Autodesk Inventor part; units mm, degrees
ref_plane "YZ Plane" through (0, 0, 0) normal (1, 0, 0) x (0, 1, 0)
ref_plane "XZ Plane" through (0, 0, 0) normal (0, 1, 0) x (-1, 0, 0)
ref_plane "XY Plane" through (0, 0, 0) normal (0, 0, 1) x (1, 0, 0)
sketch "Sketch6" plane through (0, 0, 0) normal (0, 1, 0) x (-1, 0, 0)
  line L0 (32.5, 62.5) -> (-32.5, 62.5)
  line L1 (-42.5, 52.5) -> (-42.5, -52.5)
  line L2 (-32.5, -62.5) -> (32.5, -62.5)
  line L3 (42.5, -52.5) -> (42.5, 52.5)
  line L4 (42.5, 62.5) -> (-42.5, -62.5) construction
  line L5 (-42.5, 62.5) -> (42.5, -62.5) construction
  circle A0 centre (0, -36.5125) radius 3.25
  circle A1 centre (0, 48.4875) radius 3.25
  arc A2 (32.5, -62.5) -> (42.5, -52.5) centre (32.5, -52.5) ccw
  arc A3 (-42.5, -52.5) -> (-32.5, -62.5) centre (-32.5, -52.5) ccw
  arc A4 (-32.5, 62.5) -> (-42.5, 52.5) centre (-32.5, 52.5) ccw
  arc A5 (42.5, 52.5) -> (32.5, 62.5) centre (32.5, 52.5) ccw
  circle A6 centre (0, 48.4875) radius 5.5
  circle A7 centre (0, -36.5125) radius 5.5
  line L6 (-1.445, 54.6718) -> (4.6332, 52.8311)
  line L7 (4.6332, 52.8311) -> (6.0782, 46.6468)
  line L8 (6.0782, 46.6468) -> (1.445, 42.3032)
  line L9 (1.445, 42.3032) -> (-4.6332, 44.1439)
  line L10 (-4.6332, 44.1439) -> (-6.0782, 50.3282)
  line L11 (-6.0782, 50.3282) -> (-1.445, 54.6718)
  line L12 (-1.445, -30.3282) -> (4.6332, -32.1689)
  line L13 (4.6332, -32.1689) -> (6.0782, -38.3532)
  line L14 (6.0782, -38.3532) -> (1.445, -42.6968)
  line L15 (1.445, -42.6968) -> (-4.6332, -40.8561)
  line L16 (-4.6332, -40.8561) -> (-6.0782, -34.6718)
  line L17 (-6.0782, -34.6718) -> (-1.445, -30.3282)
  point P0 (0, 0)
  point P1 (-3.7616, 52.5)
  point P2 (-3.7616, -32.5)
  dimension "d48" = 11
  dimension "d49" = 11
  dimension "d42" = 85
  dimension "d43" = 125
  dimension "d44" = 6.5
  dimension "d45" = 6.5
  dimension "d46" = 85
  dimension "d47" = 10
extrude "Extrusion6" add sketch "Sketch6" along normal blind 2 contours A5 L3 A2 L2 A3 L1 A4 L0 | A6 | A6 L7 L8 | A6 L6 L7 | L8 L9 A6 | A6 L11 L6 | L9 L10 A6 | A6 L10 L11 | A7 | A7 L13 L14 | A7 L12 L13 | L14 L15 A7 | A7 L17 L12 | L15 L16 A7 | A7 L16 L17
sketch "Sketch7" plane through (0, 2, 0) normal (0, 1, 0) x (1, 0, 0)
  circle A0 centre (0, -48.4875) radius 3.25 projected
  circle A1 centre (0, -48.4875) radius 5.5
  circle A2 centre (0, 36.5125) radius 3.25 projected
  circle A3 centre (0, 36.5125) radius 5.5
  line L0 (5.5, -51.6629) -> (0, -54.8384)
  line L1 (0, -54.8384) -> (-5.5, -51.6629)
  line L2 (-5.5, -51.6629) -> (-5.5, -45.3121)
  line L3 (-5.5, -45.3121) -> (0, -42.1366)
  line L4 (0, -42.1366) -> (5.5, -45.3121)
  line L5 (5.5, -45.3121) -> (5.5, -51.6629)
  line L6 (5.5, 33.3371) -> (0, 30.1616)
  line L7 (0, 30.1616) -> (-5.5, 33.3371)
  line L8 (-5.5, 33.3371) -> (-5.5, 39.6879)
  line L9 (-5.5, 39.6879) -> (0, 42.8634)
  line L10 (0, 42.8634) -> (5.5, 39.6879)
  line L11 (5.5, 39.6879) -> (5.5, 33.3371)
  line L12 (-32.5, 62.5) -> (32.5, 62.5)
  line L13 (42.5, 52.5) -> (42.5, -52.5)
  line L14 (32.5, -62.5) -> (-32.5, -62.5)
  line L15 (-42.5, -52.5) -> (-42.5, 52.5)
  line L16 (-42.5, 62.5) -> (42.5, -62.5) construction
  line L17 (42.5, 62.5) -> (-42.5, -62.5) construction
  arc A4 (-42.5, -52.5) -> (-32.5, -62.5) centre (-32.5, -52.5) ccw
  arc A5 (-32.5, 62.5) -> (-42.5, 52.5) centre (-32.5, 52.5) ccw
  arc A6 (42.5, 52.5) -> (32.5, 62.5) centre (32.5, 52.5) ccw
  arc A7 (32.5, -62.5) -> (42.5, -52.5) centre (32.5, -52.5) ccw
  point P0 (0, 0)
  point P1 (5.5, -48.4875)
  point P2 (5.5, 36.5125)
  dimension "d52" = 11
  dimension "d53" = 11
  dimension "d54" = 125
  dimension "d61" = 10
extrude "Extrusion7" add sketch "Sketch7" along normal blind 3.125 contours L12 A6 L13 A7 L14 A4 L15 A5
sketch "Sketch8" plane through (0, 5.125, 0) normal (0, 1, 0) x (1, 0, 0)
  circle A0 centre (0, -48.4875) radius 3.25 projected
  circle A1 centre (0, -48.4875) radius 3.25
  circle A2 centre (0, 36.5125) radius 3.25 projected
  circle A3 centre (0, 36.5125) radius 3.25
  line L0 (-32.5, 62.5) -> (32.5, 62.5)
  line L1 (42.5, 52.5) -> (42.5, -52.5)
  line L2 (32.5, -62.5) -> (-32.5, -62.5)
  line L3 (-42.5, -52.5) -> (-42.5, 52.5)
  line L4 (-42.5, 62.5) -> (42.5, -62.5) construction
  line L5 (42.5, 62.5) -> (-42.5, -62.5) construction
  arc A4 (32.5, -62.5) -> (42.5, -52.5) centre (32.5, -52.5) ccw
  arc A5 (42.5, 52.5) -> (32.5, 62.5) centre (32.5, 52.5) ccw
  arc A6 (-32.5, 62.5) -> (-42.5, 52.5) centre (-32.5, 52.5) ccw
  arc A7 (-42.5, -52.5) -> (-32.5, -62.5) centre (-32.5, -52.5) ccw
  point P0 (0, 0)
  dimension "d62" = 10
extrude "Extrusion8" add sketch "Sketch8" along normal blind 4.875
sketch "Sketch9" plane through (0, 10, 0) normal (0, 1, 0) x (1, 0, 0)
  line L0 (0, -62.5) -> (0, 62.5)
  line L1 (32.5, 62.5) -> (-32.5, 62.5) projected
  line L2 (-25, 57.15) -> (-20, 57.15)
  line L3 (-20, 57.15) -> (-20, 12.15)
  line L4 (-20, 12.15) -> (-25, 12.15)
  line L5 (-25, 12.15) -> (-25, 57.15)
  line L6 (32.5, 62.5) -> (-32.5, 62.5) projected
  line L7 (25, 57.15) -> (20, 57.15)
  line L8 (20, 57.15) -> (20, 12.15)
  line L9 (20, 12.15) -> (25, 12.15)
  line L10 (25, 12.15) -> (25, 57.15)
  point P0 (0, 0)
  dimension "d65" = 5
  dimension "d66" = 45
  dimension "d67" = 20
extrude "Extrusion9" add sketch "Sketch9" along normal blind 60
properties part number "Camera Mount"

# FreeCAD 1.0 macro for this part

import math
import FreeCAD as App
import Part
import Sketcher

V = App.Vector
Q = App.Units.Quantity


def add_polygon(sketch, points):
    """Adds a closed chain of lines whose ends are joined by coincident constraints."""
    first, n = sketch.GeometryCount, len(points)
    for a, b in zip(points, points[1:] + points[:1]):
        sketch.addGeometry(Part.LineSegment(App.Vector(*a, 0), App.Vector(*b, 0)), False)
    for i in range(n):
        sketch.addConstraint(Sketcher.Constraint("Coincident", first + i, 2, first + (i + 1) % n, 1))

doc = App.newDocument("Part")
body = doc.addObject("PartDesign::Body", "Body")

# Sketch on XZ plane
sketch1 = doc.addObject("Sketcher::SketchObject", "Sketch")
body.addObject(sketch1)
sketch1.AttachmentSupport = (doc.XZ_Plane, [""])
sketch1.MapMode = "FlatFace"
sketch1.addGeometry(Part.ArcOfCircle(Part.Circle(V(-32.5, 52.5, 0), V(0, 0, 1), 10), math.radians(90), math.radians(180)), False)
sketch1.addGeometry(Part.LineSegment(V(-32.5, 62.5, 0), V(32.5, 62.5, 0)), False)
sketch1.addGeometry(Part.ArcOfCircle(Part.Circle(V(32.5, 52.5, 0), V(0, 0, 1), 10), math.radians(0), math.radians(90)), False)
sketch1.addGeometry(Part.LineSegment(V(42.5, 52.5, 0), V(42.5, -52.5, 0)), False)
sketch1.addGeometry(Part.ArcOfCircle(Part.Circle(V(32.5, -52.5, 0), V(0, 0, 1), 10), math.radians(-90), math.radians(0)), False)
sketch1.addGeometry(Part.LineSegment(V(32.5, -62.5, 0), V(-32.5, -62.5, 0)), False)
sketch1.addGeometry(Part.ArcOfCircle(Part.Circle(V(-32.5, -52.5, 0), V(0, 0, 1), 10), math.radians(180), math.radians(270)), False)
sketch1.addGeometry(Part.LineSegment(V(-42.5, -52.5, 0), V(-42.5, 52.5, 0)), False)
sketch1.addGeometry(Part.Circle(V(0, -36.5, 0), V(0, 0, 1), 3.2), False)
sketch1.addGeometry(Part.Circle(V(0, 48.5, 0), V(0, 0, 1), 3.2), False)
sketch1.addConstraint(Sketcher.Constraint("Tangent", 0, 1, 1, 1))
sketch1.addConstraint(Sketcher.Constraint("Tangent", 1, 2, 2, 2))
sketch1.addConstraint(Sketcher.Constraint("Tangent", 2, 1, 3, 1))
sketch1.addConstraint(Sketcher.Constraint("Tangent", 3, 2, 4, 2))
sketch1.addConstraint(Sketcher.Constraint("Tangent", 4, 1, 5, 1))
sketch1.addConstraint(Sketcher.Constraint("Tangent", 5, 2, 6, 2))
sketch1.addConstraint(Sketcher.Constraint("Tangent", 6, 1, 7, 1))
sketch1.addConstraint(Sketcher.Constraint("Tangent", 7, 2, 0, 2))
sketch1.addConstraint(Sketcher.Constraint("Horizontal", 1))
sketch1.addConstraint(Sketcher.Constraint("Vertical", 3))
sketch1.addConstraint(Sketcher.Constraint("Horizontal", 5))
sketch1.addConstraint(Sketcher.Constraint("Vertical", 7))
sketch1.addConstraint(Sketcher.Constraint("Equal", 0, 2))
sketch1.addConstraint(Sketcher.Constraint("Equal", 2, 4))
sketch1.addConstraint(Sketcher.Constraint("Equal", 4, 6))
sketch1.addConstraint(Sketcher.Constraint("Equal", 8, 9))
sketch1.addConstraint(Sketcher.Constraint("Symmetric", 0, 3, 4, 3, -1, 1))
sketch1.addConstraint(Sketcher.Constraint("PointOnObject", 8, 3, -2))
sketch1.addConstraint(Sketcher.Constraint("PointOnObject", 9, 3, -2))
sketch1.addConstraint(Sketcher.Constraint("Radius", 0, 10.0))
sketch1.addConstraint(Sketcher.Constraint("Diameter", 8, 6.5))
sketch1.addConstraint(Sketcher.Constraint("DistanceY", 8, 3, 9, 3, 85.0))
sketch1.addConstraint(Sketcher.Constraint("DistanceX", 1, 1, 1, 2, 65.0))
sketch1.addConstraint(Sketcher.Constraint("DistanceY", 3, 2, 3, 1, 105.0))
sketch1.addConstraint(Sketcher.Constraint("DistanceY", 8, 3, -1, 1, 36.5125))
pad1 = doc.addObject("PartDesign::Pad", "Pad")
body.addObject(pad1)
pad1.Profile = sketch1
pad1.Length = 2
pad1.Reversed = True

# Sketch on XZ plane
sketch2 = doc.addObject("Sketcher::SketchObject", "Sketch001")
body.addObject(sketch2)
sketch2.AttachmentSupport = (doc.XZ_Plane, [""])
sketch2.MapMode = "FlatFace"
sketch2.AttachmentOffset = App.Placement(V(0, 0, -2), App.Rotation())
sketch2.addGeometry(Part.LineSegment(V(32, -62, 0), V(-32, -62, 0)), False)  # 0
sketch2.addGeometry(Part.ArcOfCircle(Part.Circle(V(-32, -52, 0), V(0, 0, 1), 10), math.radians(180), math.radians(270)), False)  # 1
sketch2.addGeometry(Part.LineSegment(V(-42, -52, 0), V(-42, 52, 0)), False)  # 2
sketch2.addGeometry(Part.ArcOfCircle(Part.Circle(V(-32, 52, 0), V(0, 0, 1), 10), math.radians(90), math.radians(180)), False)  # 3
sketch2.addGeometry(Part.LineSegment(V(-32, 62, 0), V(32, 62, 0)), False)  # 4
sketch2.addGeometry(Part.ArcOfCircle(Part.Circle(V(32, 52, 0), V(0, 0, 1), 10), math.radians(0), math.radians(90)), False)  # 5
sketch2.addGeometry(Part.LineSegment(V(42, 52, 0), V(42, -52, 0)), False)  # 6
sketch2.addGeometry(Part.ArcOfCircle(Part.Circle(V(32, -52, 0), V(0, 0, 1), 10), math.radians(-90), math.radians(0)), False)  # 7
add_polygon(sketch2, [(6, 45), (6, 52), (0, 55), (-6, 52), (-6, 45), (0, 42)])  # lines 8-13
add_polygon(sketch2, [(6, -40), (6, -33), (0, -30), (-6, -33), (-6, -40), (0, -43)])  # lines 14-19
sketch2.addConstraint(Sketcher.Constraint("Tangent", 0, 2, 1, 2))
sketch2.addConstraint(Sketcher.Constraint("Tangent", 1, 1, 2, 1))
sketch2.addConstraint(Sketcher.Constraint("Tangent", 2, 2, 3, 2))
sketch2.addConstraint(Sketcher.Constraint("Tangent", 3, 1, 4, 1))
sketch2.addConstraint(Sketcher.Constraint("Tangent", 4, 2, 5, 2))
sketch2.addConstraint(Sketcher.Constraint("Tangent", 5, 1, 6, 1))
sketch2.addConstraint(Sketcher.Constraint("Tangent", 6, 2, 7, 2))
sketch2.addConstraint(Sketcher.Constraint("Tangent", 7, 1, 0, 1))
sketch2.addConstraint(Sketcher.Constraint("Horizontal", 0))
sketch2.addConstraint(Sketcher.Constraint("Vertical", 2))
sketch2.addConstraint(Sketcher.Constraint("Horizontal", 4))
sketch2.addConstraint(Sketcher.Constraint("Vertical", 6))
sketch2.addConstraint(Sketcher.Constraint("Vertical", 8))
sketch2.addConstraint(Sketcher.Constraint("Vertical", 11))
sketch2.addConstraint(Sketcher.Constraint("Vertical", 14))
sketch2.addConstraint(Sketcher.Constraint("Vertical", 17))
sketch2.addConstraint(Sketcher.Constraint("Equal", 1, 3))
sketch2.addConstraint(Sketcher.Constraint("Equal", 3, 5))
sketch2.addConstraint(Sketcher.Constraint("Equal", 5, 7))
sketch2.addConstraint(Sketcher.Constraint("Symmetric", 1, 3, 5, 3, -1, 1))
sketch2.addConstraint(Sketcher.Constraint("Symmetric", 8, 2, 10, 2, -2))
sketch2.addConstraint(Sketcher.Constraint("Symmetric", 14, 2, 16, 2, -2))
sketch2.addConstraint(Sketcher.Constraint("PointOnObject", 9, 2, -2))
sketch2.addConstraint(Sketcher.Constraint("PointOnObject", 12, 2, -2))
sketch2.addConstraint(Sketcher.Constraint("PointOnObject", 15, 2, -2))
sketch2.addConstraint(Sketcher.Constraint("PointOnObject", 18, 2, -2))
sketch2.addConstraint(Sketcher.Constraint("Parallel", 9, 12))
sketch2.addConstraint(Sketcher.Constraint("Parallel", 10, 13))
sketch2.addConstraint(Sketcher.Constraint("Parallel", 12, 15))
sketch2.addConstraint(Sketcher.Constraint("Parallel", 15, 18))
sketch2.addConstraint(Sketcher.Constraint("Parallel", 16, 19))
sketch2.addConstraint(Sketcher.Constraint("Vertical", 13, 2, 14, 2))
sketch2.addConstraint(Sketcher.Constraint("Equal", 11, 14))
sketch2.addConstraint(Sketcher.Constraint("Radius", 1, 10.0))
sketch2.addConstraint(Sketcher.Constraint("DistanceX", 10, 2, 8, 2, 11.0))
sketch2.addConstraint(Sketcher.Constraint("DistanceX", 0, 2, 0, 1, 65.0))
sketch2.addConstraint(Sketcher.Constraint("DistanceY", 2, 1, 2, 2, 105.0))
sketch2.addConstraint(Sketcher.Constraint("Angle", 9, Q("149.9994 deg")))
sketch2.addConstraint(Sketcher.Constraint("DistanceY", 8, 1, 8, 2, 6.3508))
sketch2.addConstraint(Sketcher.Constraint("DistanceY", -1, 1, 8, 2, 51.663))
sketch2.addConstraint(Sketcher.Constraint("DistanceY", 14, 2, -1, 1, 33.337))
pad2 = doc.addObject("PartDesign::Pad", "Pad001")
body.addObject(pad2)
pad2.Profile = sketch2
pad2.Length = 3.125
pad2.Reversed = True

# Sketch on XZ plane
sketch3 = doc.addObject("Sketcher::SketchObject", "Sketch002")
body.addObject(sketch3)
sketch3.AttachmentSupport = (doc.XZ_Plane, [""])
sketch3.MapMode = "FlatFace"
sketch3.AttachmentOffset = App.Placement(V(0, 0, -5.125), App.Rotation())
sketch3.addGeometry(Part.LineSegment(V(32.5, -62.5, 0), V(-32.5, -62.5, 0)), False)
sketch3.addGeometry(Part.ArcOfCircle(Part.Circle(V(-32.5, -52.5, 0), V(0, 0, 1), 10), math.radians(180), math.radians(270)), False)
sketch3.addGeometry(Part.LineSegment(V(-42.5, -52.5, 0), V(-42.5, 52.5, 0)), False)
sketch3.addGeometry(Part.ArcOfCircle(Part.Circle(V(-32.5, 52.5, 0), V(0, 0, 1), 10), math.radians(90), math.radians(180)), False)
sketch3.addGeometry(Part.LineSegment(V(-32.5, 62.5, 0), V(32.5, 62.5, 0)), False)
sketch3.addGeometry(Part.ArcOfCircle(Part.Circle(V(32.5, 52.5, 0), V(0, 0, 1), 10), math.radians(0), math.radians(90)), False)
sketch3.addGeometry(Part.LineSegment(V(42.5, 52.5, 0), V(42.5, -52.5, 0)), False)
sketch3.addGeometry(Part.ArcOfCircle(Part.Circle(V(32.5, -52.5, 0), V(0, 0, 1), 10), math.radians(-90), math.radians(0)), False)
sketch3.addGeometry(Part.Circle(V(0, 48.5, 0), V(0, 0, 1), 3.2), False)
sketch3.addGeometry(Part.Circle(V(0, -36.5, 0), V(0, 0, 1), 3.2), False)
sketch3.addConstraint(Sketcher.Constraint("Tangent", 0, 2, 1, 2))
sketch3.addConstraint(Sketcher.Constraint("Tangent", 1, 1, 2, 1))
sketch3.addConstraint(Sketcher.Constraint("Tangent", 2, 2, 3, 2))
sketch3.addConstraint(Sketcher.Constraint("Tangent", 3, 1, 4, 1))
sketch3.addConstraint(Sketcher.Constraint("Tangent", 4, 2, 5, 2))
sketch3.addConstraint(Sketcher.Constraint("Tangent", 5, 1, 6, 1))
sketch3.addConstraint(Sketcher.Constraint("Tangent", 6, 2, 7, 2))
sketch3.addConstraint(Sketcher.Constraint("Tangent", 7, 1, 0, 1))
sketch3.addConstraint(Sketcher.Constraint("Horizontal", 0))
sketch3.addConstraint(Sketcher.Constraint("Vertical", 2))
sketch3.addConstraint(Sketcher.Constraint("Horizontal", 4))
sketch3.addConstraint(Sketcher.Constraint("Vertical", 6))
sketch3.addConstraint(Sketcher.Constraint("Equal", 1, 3))
sketch3.addConstraint(Sketcher.Constraint("Equal", 3, 5))
sketch3.addConstraint(Sketcher.Constraint("Equal", 5, 7))
sketch3.addConstraint(Sketcher.Constraint("Equal", 8, 9))
sketch3.addConstraint(Sketcher.Constraint("Symmetric", 1, 3, 5, 3, -1, 1))
sketch3.addConstraint(Sketcher.Constraint("PointOnObject", 8, 3, -2))
sketch3.addConstraint(Sketcher.Constraint("PointOnObject", 9, 3, -2))
sketch3.addConstraint(Sketcher.Constraint("Radius", 1, 10.0))
sketch3.addConstraint(Sketcher.Constraint("Diameter", 8, 6.5))
sketch3.addConstraint(Sketcher.Constraint("DistanceX", 0, 2, 0, 1, 65.0))
sketch3.addConstraint(Sketcher.Constraint("DistanceY", 2, 1, 2, 2, 105.0))
sketch3.addConstraint(Sketcher.Constraint("DistanceY", 9, 3, 8, 3, 85.0))
sketch3.addConstraint(Sketcher.Constraint("DistanceY", -1, 1, 8, 3, 48.4875))
pad3 = doc.addObject("PartDesign::Pad", "Pad002")
body.addObject(pad3)
pad3.Profile = sketch3
pad3.Length = 4.875
pad3.Reversed = True

# Sketch on XZ plane
sketch4 = doc.addObject("Sketcher::SketchObject", "Sketch003")
body.addObject(sketch4)
sketch4.AttachmentSupport = (doc.XZ_Plane, [""])
sketch4.MapMode = "FlatFace"
sketch4.AttachmentOffset = App.Placement(V(0, 0, -10), App.Rotation())
add_polygon(sketch4, [(-20, -57), (-25, -57), (-25, -12), (-20, -12)])  # lines 0-3
add_polygon(sketch4, [(25, -12), (25, -57), (20, -57), (20, -12)])  # lines 4-7
sketch4.addConstraint(Sketcher.Constraint("Horizontal", 0))
sketch4.addConstraint(Sketcher.Constraint("Vertical", 1))
sketch4.addConstraint(Sketcher.Constraint("Horizontal", 2))
sketch4.addConstraint(Sketcher.Constraint("Vertical", 3))
sketch4.addConstraint(Sketcher.Constraint("Vertical", 4))
sketch4.addConstraint(Sketcher.Constraint("Horizontal", 5))
sketch4.addConstraint(Sketcher.Constraint("Vertical", 6))
sketch4.addConstraint(Sketcher.Constraint("Horizontal", 7))
sketch4.addConstraint(Sketcher.Constraint("Symmetric", 0, 2, 4, 2, -2))
sketch4.addConstraint(Sketcher.Constraint("Symmetric", 2, 2, 6, 2, -2))
sketch4.addConstraint(Sketcher.Constraint("DistanceX", 0, 2, 0, 1, 5.0))
sketch4.addConstraint(Sketcher.Constraint("DistanceY", 1, 1, 1, 2, 45.0))
sketch4.addConstraint(Sketcher.Constraint("DistanceX", 2, 2, -1, 1, 20.0))
sketch4.addConstraint(Sketcher.Constraint("DistanceY", 0, 2, -1, 1, 57.15))
pad4 = doc.addObject("PartDesign::Pad", "Pad003")
body.addObject(pad4)
pad4.Profile = sketch4
pad4.Length = 60
pad4.Reversed = True

doc.recompute()
